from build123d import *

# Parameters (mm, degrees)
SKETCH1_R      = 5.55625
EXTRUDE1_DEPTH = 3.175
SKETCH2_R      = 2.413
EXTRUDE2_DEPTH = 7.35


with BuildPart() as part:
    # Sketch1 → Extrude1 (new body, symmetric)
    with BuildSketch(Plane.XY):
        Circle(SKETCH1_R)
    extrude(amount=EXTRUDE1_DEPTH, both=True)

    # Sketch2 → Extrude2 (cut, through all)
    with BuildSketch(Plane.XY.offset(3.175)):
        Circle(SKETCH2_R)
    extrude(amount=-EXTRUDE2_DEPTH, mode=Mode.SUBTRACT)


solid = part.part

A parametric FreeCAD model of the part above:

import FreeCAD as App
import Part
import Sketcher
from FreeCAD import Vector
Q = App.Units.Quantity

doc = App.newDocument("Part")
params = doc.addObject("Spreadsheet::Sheet", "Params")
for row, (alias, value) in enumerate([
    ("sketch1_diameter", "0.4375 in"),
    ("pad1_length", "0.25 in"),
    ("sketch2_diameter", "0.19 in"),
], start=1):
    params.set(f"A{row}", alias)
    params.set(f"B{row}", "=" + value)
    params.setAlias(f"B{row}", alias)

body = doc.addObject("PartDesign::Body", "Body")

sketch1 = doc.addObject("Sketcher::SketchObject", "Sketch")
body.addObject(sketch1)
sketch1.AttachmentSupport = (doc.XY_Plane, [""])
sketch1.MapMode = "FlatFace"
sketch1.addGeometry(Part.Circle(Vector(0, 0, 0), Vector(0, 0, 1), 6), False)
sketch1.addConstraint(Sketcher.Constraint("Coincident", 0, 3, -1, 1))
sketch1.addConstraint(Sketcher.Constraint("Diameter", 0, Q("0.4375 in")))
sketch1.setExpression("Constraints[1]", "Params.sketch1_diameter")
pad1 = doc.addObject("PartDesign::Pad", "Pad")
body.addObject(pad1)
pad1.Profile = sketch1
pad1.setExpression("Length", "Params.pad1_length")
pad1.Midplane = True

sketch2 = doc.addObject("Sketcher::SketchObject", "Sketch001")
body.addObject(sketch2)
sketch2.AttachmentSupport = (doc.XY_Plane, [""])
sketch2.MapMode = "FlatFace"
sketch2.AttachmentOffset = App.Placement(Vector(0, 0, 0.125 * 25.4), App.Rotation())
sketch2.addGeometry(Part.Circle(Vector(0, 0, 0), Vector(0, 0, 1), 2.4), False)
sketch2.addConstraint(Sketcher.Constraint("Coincident", 0, 3, -1, 1))
sketch2.addConstraint(Sketcher.Constraint("Diameter", 0, Q("0.19 in")))
sketch2.setExpression("Constraints[1]", "Params.sketch2_diameter")
pocket1 = doc.addObject("PartDesign::Pocket", "Pocket")
body.addObject(pocket1)
pocket1.Profile = sketch2
pocket1.Type = "ThroughAll"

doc.recompute()
